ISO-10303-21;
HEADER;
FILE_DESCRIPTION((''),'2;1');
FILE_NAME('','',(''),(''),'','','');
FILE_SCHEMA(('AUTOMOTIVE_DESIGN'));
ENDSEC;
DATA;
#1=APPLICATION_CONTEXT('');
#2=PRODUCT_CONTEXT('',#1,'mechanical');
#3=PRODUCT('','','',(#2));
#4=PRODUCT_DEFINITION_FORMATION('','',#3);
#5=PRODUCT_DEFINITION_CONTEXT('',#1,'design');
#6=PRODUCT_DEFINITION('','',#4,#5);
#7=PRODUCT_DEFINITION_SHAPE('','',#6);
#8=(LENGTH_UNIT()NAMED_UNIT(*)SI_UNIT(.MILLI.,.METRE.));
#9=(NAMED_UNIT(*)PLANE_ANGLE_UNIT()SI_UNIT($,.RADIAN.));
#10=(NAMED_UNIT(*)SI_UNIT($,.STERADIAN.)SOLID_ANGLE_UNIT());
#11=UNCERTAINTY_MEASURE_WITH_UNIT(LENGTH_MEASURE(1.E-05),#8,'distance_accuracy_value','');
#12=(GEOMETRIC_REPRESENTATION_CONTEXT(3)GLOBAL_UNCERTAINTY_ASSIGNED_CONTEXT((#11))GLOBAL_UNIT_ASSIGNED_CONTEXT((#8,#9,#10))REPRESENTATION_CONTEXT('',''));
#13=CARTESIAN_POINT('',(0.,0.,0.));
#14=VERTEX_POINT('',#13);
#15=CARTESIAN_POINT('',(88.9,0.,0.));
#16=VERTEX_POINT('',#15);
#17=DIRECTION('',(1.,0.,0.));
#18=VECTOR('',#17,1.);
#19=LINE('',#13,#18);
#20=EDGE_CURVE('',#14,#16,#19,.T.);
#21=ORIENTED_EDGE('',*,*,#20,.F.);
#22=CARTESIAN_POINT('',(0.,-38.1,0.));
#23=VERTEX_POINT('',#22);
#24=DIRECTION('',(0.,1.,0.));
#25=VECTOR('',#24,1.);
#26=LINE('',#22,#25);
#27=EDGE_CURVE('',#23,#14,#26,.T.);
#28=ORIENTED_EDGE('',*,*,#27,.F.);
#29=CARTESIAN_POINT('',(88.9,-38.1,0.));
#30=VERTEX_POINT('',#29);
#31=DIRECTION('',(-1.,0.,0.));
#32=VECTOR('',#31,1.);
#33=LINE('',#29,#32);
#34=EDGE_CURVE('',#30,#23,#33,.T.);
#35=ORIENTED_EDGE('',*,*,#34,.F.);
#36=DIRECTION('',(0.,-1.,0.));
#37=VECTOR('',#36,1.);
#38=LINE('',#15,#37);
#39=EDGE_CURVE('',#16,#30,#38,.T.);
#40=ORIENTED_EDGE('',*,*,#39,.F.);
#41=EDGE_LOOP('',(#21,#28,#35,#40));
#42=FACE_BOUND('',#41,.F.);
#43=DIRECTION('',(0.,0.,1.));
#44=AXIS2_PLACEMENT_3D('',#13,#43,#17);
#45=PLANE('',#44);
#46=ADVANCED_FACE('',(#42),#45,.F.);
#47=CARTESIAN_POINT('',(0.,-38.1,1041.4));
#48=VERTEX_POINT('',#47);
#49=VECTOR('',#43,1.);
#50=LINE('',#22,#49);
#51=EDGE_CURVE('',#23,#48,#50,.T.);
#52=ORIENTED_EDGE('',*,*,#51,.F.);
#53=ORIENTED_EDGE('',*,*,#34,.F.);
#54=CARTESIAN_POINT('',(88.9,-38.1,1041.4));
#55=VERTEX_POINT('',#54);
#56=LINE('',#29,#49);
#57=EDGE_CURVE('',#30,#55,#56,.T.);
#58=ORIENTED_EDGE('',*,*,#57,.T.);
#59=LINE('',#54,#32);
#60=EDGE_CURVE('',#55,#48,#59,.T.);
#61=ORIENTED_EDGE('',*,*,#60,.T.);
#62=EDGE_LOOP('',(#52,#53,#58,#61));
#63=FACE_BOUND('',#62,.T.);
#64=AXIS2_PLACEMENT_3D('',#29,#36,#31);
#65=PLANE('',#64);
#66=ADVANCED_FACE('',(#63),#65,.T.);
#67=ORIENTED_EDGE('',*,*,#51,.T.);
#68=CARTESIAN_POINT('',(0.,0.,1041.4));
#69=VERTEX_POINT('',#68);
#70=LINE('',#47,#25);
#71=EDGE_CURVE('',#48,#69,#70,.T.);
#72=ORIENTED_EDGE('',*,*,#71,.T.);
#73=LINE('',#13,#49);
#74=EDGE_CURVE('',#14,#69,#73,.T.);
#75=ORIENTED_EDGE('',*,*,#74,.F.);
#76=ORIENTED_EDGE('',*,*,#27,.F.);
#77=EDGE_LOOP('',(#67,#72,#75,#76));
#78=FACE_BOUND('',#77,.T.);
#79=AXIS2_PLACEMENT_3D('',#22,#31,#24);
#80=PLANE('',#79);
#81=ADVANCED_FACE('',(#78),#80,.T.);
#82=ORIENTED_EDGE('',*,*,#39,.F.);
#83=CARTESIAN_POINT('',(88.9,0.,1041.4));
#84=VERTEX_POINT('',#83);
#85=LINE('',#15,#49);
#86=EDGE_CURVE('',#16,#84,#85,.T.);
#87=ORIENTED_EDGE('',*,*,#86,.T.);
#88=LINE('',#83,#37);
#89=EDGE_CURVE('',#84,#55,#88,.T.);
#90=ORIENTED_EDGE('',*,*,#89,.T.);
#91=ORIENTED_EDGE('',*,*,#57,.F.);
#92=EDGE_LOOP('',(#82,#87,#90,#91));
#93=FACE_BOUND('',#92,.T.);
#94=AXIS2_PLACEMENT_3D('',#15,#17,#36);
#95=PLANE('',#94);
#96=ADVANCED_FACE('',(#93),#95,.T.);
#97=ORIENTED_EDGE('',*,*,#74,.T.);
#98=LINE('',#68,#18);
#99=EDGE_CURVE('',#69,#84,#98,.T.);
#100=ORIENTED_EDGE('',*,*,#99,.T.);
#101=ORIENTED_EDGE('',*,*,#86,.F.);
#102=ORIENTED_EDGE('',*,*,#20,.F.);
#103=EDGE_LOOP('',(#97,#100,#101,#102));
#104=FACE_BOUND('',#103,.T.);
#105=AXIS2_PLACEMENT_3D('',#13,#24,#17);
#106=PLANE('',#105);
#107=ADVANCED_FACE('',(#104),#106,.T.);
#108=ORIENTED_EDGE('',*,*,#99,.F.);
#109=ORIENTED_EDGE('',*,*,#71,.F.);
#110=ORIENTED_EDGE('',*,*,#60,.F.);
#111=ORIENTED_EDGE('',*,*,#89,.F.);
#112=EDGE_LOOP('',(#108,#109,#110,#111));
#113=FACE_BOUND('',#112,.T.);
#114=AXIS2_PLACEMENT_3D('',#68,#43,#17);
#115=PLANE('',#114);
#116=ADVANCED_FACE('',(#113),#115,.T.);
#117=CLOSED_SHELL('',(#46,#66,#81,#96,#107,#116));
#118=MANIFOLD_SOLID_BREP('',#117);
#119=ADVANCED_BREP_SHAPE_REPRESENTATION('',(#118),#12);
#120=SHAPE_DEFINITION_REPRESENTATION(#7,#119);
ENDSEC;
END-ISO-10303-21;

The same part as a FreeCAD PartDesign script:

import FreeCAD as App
import Part
import Sketcher

V = App.Vector
Q = App.Units.Quantity

doc = App.newDocument("Part")
body = doc.addObject("PartDesign::Body", "Body")

sketch1 = body.newObject("Sketcher::SketchObject", "Sketch")
sketch1.AttachmentSupport = (doc.getObject("XY_Plane"), [""])
sketch1.MapMode = "FlatFace"
sketch1.addGeometry(Part.LineSegment(V(89, 0, 0), V(0, 0, 0)), False)
sketch1.addGeometry(Part.LineSegment(V(0, 0, 0), V(0, -38, 0)), False)
sketch1.addGeometry(Part.LineSegment(V(0, -38, 0), V(89, -38, 0)), False)
sketch1.addGeometry(Part.LineSegment(V(89, -38, 0), V(89, 0, 0)), False)
sketch1.addConstraint(Sketcher.Constraint("Coincident", 0, 2, 1, 1))
sketch1.addConstraint(Sketcher.Constraint("Coincident", 1, 2, 2, 1))
sketch1.addConstraint(Sketcher.Constraint("Coincident", 2, 2, 3, 1))
sketch1.addConstraint(Sketcher.Constraint("Coincident", 3, 2, 0, 1))
sketch1.addConstraint(Sketcher.Constraint("Horizontal", 0))
sketch1.addConstraint(Sketcher.Constraint("Vertical", 1))
sketch1.addConstraint(Sketcher.Constraint("Horizontal", 2))
sketch1.addConstraint(Sketcher.Constraint("Vertical", 3))
sketch1.addConstraint(Sketcher.Constraint("Coincident", 0, 2, -1, 1))
sketch1.addConstraint(Sketcher.Constraint("DistanceX", 0, 2, 0, 1, Q("3.5 in")))
sketch1.addConstraint(Sketcher.Constraint("DistanceY", 1, 2, 1, 1, Q("1.5 in")))
pad1 = body.newObject("PartDesign::Pad", "Pad")
pad1.Profile = sketch1
pad1.Length = Q("41 in")

doc.recompute()
